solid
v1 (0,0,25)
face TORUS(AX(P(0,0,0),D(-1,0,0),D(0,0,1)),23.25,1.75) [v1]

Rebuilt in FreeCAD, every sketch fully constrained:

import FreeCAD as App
import Part
import Sketcher
from FreeCAD import Vector

doc = App.newDocument("Part")
params = doc.addObject("Spreadsheet::Sheet", "Params")
for row, (alias, value) in enumerate([
    ("sketch1_diameter", "3.5 mm"),
    ("revolution_angle", "360 deg"),
], start=1):
    params.set(f"A{row}", alias)
    params.set(f"B{row}", "=" + value)
    params.setAlias(f"B{row}", alias)

body = doc.addObject("PartDesign::Body", "Body")

# Sketch on XY plane
sketch1 = body.newObject("Sketcher::SketchObject", "Sketch")
sketch1.AttachmentSupport = (doc.getObject("XY_Plane"), [""])
sketch1.MapMode = "FlatFace"
sketch1.addGeometry(Part.Circle(Vector(0, 23.2, 0), Vector(0, 0, 1), 1.8), False)
sketch1.addConstraint([
    Sketcher.Constraint("PointOnObject", 0, 3, -2),
    Sketcher.Constraint("Diameter", 0, 3.5),
    Sketcher.Constraint("DistanceY", -1, 1, 0, 3, 23.25),
])
sketch1.setExpression("Constraints[1]", "Params.sketch1_diameter")
revolution = body.newObject("PartDesign::Revolution", "Revolution")
revolution.Profile = sketch1
revolution.ReferenceAxis = (sketch1, ["H_Axis"])
revolution.setExpression("Angle", "Params.revolution_angle")

doc.recompute()
